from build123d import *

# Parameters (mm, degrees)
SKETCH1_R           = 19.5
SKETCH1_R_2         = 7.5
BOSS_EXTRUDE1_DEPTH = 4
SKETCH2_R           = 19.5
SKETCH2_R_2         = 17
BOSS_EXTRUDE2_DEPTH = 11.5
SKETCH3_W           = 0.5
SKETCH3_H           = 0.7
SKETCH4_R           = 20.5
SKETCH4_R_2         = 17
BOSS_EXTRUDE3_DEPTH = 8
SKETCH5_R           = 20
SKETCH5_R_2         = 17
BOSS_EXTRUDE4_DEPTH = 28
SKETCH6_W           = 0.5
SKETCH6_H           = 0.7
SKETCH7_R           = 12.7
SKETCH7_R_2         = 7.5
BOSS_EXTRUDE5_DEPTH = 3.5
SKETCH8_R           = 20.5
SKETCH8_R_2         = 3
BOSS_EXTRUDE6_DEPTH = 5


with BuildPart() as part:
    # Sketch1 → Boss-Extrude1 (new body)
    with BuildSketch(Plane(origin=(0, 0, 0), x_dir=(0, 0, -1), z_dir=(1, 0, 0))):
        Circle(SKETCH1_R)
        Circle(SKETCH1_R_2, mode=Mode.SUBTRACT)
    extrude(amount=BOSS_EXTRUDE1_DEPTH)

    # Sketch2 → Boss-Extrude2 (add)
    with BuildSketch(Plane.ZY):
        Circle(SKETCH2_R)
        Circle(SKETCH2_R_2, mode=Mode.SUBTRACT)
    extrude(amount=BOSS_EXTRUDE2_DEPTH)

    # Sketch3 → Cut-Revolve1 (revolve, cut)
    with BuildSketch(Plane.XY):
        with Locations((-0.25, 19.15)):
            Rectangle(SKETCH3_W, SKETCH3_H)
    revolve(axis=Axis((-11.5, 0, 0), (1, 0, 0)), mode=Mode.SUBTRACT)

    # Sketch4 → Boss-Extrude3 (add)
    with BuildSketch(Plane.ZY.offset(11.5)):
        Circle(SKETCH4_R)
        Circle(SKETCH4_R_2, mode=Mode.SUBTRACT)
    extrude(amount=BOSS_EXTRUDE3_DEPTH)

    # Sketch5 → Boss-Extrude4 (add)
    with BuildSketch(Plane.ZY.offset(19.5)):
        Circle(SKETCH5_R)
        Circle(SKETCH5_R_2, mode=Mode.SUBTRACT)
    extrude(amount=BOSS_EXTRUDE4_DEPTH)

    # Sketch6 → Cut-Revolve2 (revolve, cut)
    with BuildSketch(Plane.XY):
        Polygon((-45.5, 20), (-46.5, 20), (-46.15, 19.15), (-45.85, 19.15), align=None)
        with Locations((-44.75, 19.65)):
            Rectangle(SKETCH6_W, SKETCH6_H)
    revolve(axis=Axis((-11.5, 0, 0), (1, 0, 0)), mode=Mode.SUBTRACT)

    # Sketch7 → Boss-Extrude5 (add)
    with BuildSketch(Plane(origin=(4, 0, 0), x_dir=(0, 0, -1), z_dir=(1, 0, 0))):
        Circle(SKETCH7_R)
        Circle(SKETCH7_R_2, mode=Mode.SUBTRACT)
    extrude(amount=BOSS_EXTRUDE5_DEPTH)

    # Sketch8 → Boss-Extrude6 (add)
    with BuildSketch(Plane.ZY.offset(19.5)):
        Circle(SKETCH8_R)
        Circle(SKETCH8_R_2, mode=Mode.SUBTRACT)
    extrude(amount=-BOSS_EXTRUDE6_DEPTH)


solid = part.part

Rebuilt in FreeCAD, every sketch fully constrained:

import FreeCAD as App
import Part
import Sketcher
from FreeCAD import Vector
Q = App.Units.Quantity

doc = App.newDocument("Part")
body = doc.addObject("PartDesign::Body", "Body")

# Sketch on YZ plane
sketch1 = doc.addObject("Sketcher::SketchObject", "Sketch")
body.addObject(sketch1)
sketch1.AttachmentSupport = (doc.YZ_Plane, [""])
sketch1.MapMode = "FlatFace"
sketch1.addGeometry([
    Part.Circle(Vector(0, 0, 0), Vector(0, 0, 1), 20),
    Part.Circle(Vector(0, 0, 0), Vector(0, 0, 1), 8),
], False)
sketch1.addConstraint([
    Sketcher.Constraint("Coincident", 0, 3, -1, 1),
    Sketcher.Constraint("Coincident", 1, 3, -1, 1),
    Sketcher.Constraint("Diameter", 0, Q("39 mm")),
    Sketcher.Constraint("Diameter", 1, Q("15 mm")),
])
pad1 = doc.addObject("PartDesign::Pad", "Pad")
body.addObject(pad1)
pad1.Profile = sketch1
pad1.Length = 4

# Sketch on YZ plane
sketch2 = doc.addObject("Sketcher::SketchObject", "Sketch001")
body.addObject(sketch2)
sketch2.AttachmentSupport = (doc.YZ_Plane, [""])
sketch2.MapMode = "FlatFace"
sketch2.addGeometry([
    Part.Circle(Vector(0, 0, 0), Vector(0, 0, 1), 20),
    Part.Circle(Vector(0, 0, 0), Vector(0, 0, 1), 17),
], False)
sketch2.addConstraint([
    Sketcher.Constraint("Coincident", 0, 3, -1, 1),
    Sketcher.Constraint("Coincident", 1, 3, -1, 1),
    Sketcher.Constraint("Diameter", 0, Q("39 mm")),
    Sketcher.Constraint("Diameter", 1, Q("34 mm")),
])
pad2 = doc.addObject("PartDesign::Pad", "Pad001")
body.addObject(pad2)
pad2.Profile = sketch2
pad2.Length = 11.5
pad2.Reversed = True

# Sketch on XY plane
sketch3 = doc.addObject("Sketcher::SketchObject", "Sketch002")
body.addObject(sketch3)
sketch3.AttachmentSupport = (doc.XY_Plane, [""])
sketch3.MapMode = "FlatFace"
sketch3.addGeometry([
    Part.LineSegment(Vector(-0.5, 19.5, 0), Vector(-0.5, 18.8, 0)),
    Part.LineSegment(Vector(-0.5, 18.8, 0), Vector(0, 18.8, 0)),
    Part.LineSegment(Vector(0, 18.8, 0), Vector(0, 19.5, 0)),
    Part.LineSegment(Vector(0, 19.5, 0), Vector(-0.5, 19.5, 0)),
], False)
sketch3.addConstraint([
    Sketcher.Constraint("Coincident", 0, 2, 1, 1),
    Sketcher.Constraint("Coincident", 1, 2, 2, 1),
    Sketcher.Constraint("Coincident", 2, 2, 3, 1),
    Sketcher.Constraint("Coincident", 3, 2, 0, 1),
    Sketcher.Constraint("Vertical", 0),
    Sketcher.Constraint("Horizontal", 1),
    Sketcher.Constraint("Vertical", 2),
    Sketcher.Constraint("Horizontal", 3),
    Sketcher.Constraint("PointOnObject", 1, 2, -2),
    Sketcher.Constraint("DistanceX", 1, 1, 1, 2, Q("0.5 mm")),
    Sketcher.Constraint("DistanceY", 0, 2, 0, 1, Q("0.7 mm")),
    Sketcher.Constraint("DistanceY", -1, 1, 0, 2, Q("18.8 mm")),
])
groove = doc.addObject("PartDesign::Groove", "Groove")
body.addObject(groove)
groove.Profile = sketch3
groove.ReferenceAxis = (sketch3, ["H_Axis"])
groove.Angle = 360

# Sketch on YZ plane
sketch4 = doc.addObject("Sketcher::SketchObject", "Sketch003")
body.addObject(sketch4)
sketch4.AttachmentSupport = (doc.YZ_Plane, [""])
sketch4.MapMode = "FlatFace"
sketch4.AttachmentOffset = App.Placement(Vector(0, 0, -11.5), App.Rotation())
sketch4.addGeometry([
    Part.Circle(Vector(0, 0, 0), Vector(0, 0, 1), 20),
    Part.Circle(Vector(0, 0, 0), Vector(0, 0, 1), 17),
], False)
sketch4.addConstraint([
    Sketcher.Constraint("Coincident", 0, 3, -1, 1),
    Sketcher.Constraint("Coincident", 1, 3, -1, 1),
    Sketcher.Constraint("Diameter", 0, Q("41 mm")),
    Sketcher.Constraint("Diameter", 1, Q("34 mm")),
])
pad3 = doc.addObject("PartDesign::Pad", "Pad002")
body.addObject(pad3)
pad3.Profile = sketch4
pad3.Length = 8
pad3.Reversed = True

# Sketch on YZ plane
sketch5 = doc.addObject("Sketcher::SketchObject", "Sketch004")
body.addObject(sketch5)
sketch5.AttachmentSupport = (doc.YZ_Plane, [""])
sketch5.MapMode = "FlatFace"
sketch5.AttachmentOffset = App.Placement(Vector(0, 0, -19.5), App.Rotation())
sketch5.addGeometry([
    Part.Circle(Vector(0, 0, 0), Vector(0, 0, 1), 20),
    Part.Circle(Vector(0, 0, 0), Vector(0, 0, 1), 17),
], False)
sketch5.addConstraint([
    Sketcher.Constraint("Coincident", 0, 3, -1, 1),
    Sketcher.Constraint("Coincident", 1, 3, -1, 1),
    Sketcher.Constraint("Diameter", 0, Q("40 mm")),
    Sketcher.Constraint("Diameter", 1, Q("34 mm")),
])
pad4 = doc.addObject("PartDesign::Pad", "Pad003")
body.addObject(pad4)
pad4.Profile = sketch5
pad4.Length = 28
pad4.Reversed = True

# Sketch on XY plane
sketch6 = doc.addObject("Sketcher::SketchObject", "Sketch005")
body.addObject(sketch6)
sketch6.AttachmentSupport = (doc.XY_Plane, [""])
sketch6.MapMode = "FlatFace"
sketch6.addGeometry([
    Part.LineSegment(Vector(-45.5, 20, 0), Vector(-46.5, 20, 0)),  # 0
    Part.LineSegment(Vector(-46.5, 20, 0), Vector(-46.15, 19.15, 0)),  # 1
    Part.LineSegment(Vector(-46.15, 19.15, 0), Vector(-45.85, 19.15, 0)),  # 2
    Part.LineSegment(Vector(-45.85, 19.15, 0), Vector(-45.5, 20, 0)),  # 3
    Part.LineSegment(Vector(-45, 20, 0), Vector(-45, 19.3, 0)),  # 4
    Part.LineSegment(Vector(-45, 19.3, 0), Vector(-44.5, 19.3, 0)),  # 5
    Part.LineSegment(Vector(-44.5, 19.3, 0), Vector(-44.5, 20, 0)),  # 6
    Part.LineSegment(Vector(-44.5, 20, 0), Vector(-45, 20, 0)),  # 7
], False)
sketch6.addConstraint([
    Sketcher.Constraint("Coincident", 0, 2, 1, 1),
    Sketcher.Constraint("Coincident", 1, 2, 2, 1),
    Sketcher.Constraint("Coincident", 2, 2, 3, 1),
    Sketcher.Constraint("Coincident", 3, 2, 0, 1),
    Sketcher.Constraint("Coincident", 4, 2, 5, 1),
    Sketcher.Constraint("Coincident", 5, 2, 6, 1),
    Sketcher.Constraint("Coincident", 6, 2, 7, 1),
    Sketcher.Constraint("Coincident", 7, 2, 4, 1),
    Sketcher.Constraint("Horizontal", 0),
    Sketcher.Constraint("Horizontal", 2),
    Sketcher.Constraint("Vertical", 4),
    Sketcher.Constraint("Horizontal", 5),
    Sketcher.Constraint("Vertical", 6),
    Sketcher.Constraint("Horizontal", 7),
    Sketcher.Constraint("Horizontal", 3, 2, 6, 2),
    Sketcher.Constraint("Equal", 1, 3),
    Sketcher.Constraint("DistanceX", 0, 2, 0, 1, Q("1 mm")),
    Sketcher.Constraint("DistanceX", 2, 1, 2, 2, Q("0.3 mm")),
    Sketcher.Constraint("DistanceX", 5, 1, 5, 2, Q("0.5 mm")),
    Sketcher.Constraint("DistanceY", 4, 2, 4, 1, Q("0.7 mm")),
    Sketcher.Constraint("DistanceY", -1, 1, 0, 2, Q("20 mm")),
    Sketcher.Constraint("DistanceX", 4, 2, -1, 1, Q("45 mm")),
    Sketcher.Constraint("DistanceX", 3, 2, 5, 2, Q("1 mm")),
    Sketcher.Constraint("DistanceY", -1, 1, 1, 2, Q("19.15 mm")),
])
groove2 = doc.addObject("PartDesign::Groove", "Groove001")
body.addObject(groove2)
groove2.Profile = sketch6
groove2.ReferenceAxis = (sketch6, ["H_Axis"])
groove2.Angle = 360

# Sketch on YZ plane
sketch7 = doc.addObject("Sketcher::SketchObject", "Sketch006")
body.addObject(sketch7)
sketch7.AttachmentSupport = (doc.YZ_Plane, [""])
sketch7.MapMode = "FlatFace"
sketch7.AttachmentOffset = App.Placement(Vector(0, 0, 4), App.Rotation())
sketch7.addGeometry([
    Part.Circle(Vector(0, 0, 0), Vector(0, 0, 1), 13),
    Part.Circle(Vector(0, 0, 0), Vector(0, 0, 1), 8),
], False)
sketch7.addConstraint([
    Sketcher.Constraint("Coincident", 0, 3, -1, 1),
    Sketcher.Constraint("Coincident", 1, 3, -1, 1),
    Sketcher.Constraint("Diameter", 1, Q("15 mm")),
    Sketcher.Constraint("Diameter", 0, Q("25.4 mm")),
])
pad5 = doc.addObject("PartDesign::Pad", "Pad004")
body.addObject(pad5)
pad5.Profile = sketch7
pad5.Length = 3.5

# Sketch on YZ plane
sketch8 = doc.addObject("Sketcher::SketchObject", "Sketch007")
body.addObject(sketch8)
sketch8.AttachmentSupport = (doc.YZ_Plane, [""])
sketch8.MapMode = "FlatFace"
sketch8.AttachmentOffset = App.Placement(Vector(0, 0, -19.5), App.Rotation())
sketch8.addGeometry([
    Part.Circle(Vector(0, 0, 0), Vector(0, 0, 1), 20.5),
    Part.Circle(Vector(0, 0, 0), Vector(0, 0, 1), 3),
], False)
sketch8.addConstraint([
    Sketcher.Constraint("Coincident", 0, 3, -1, 1),
    Sketcher.Constraint("Coincident", 1, 3, -1, 1),
    Sketcher.Constraint("Diameter", 0, Q("41 mm")),
    Sketcher.Constraint("Diameter", 1, Q("6 mm")),
])
pad6 = doc.addObject("PartDesign::Pad", "Pad005")
body.addObject(pad6)
pad6.Profile = sketch8
pad6.Length = 5

doc.recompute()
